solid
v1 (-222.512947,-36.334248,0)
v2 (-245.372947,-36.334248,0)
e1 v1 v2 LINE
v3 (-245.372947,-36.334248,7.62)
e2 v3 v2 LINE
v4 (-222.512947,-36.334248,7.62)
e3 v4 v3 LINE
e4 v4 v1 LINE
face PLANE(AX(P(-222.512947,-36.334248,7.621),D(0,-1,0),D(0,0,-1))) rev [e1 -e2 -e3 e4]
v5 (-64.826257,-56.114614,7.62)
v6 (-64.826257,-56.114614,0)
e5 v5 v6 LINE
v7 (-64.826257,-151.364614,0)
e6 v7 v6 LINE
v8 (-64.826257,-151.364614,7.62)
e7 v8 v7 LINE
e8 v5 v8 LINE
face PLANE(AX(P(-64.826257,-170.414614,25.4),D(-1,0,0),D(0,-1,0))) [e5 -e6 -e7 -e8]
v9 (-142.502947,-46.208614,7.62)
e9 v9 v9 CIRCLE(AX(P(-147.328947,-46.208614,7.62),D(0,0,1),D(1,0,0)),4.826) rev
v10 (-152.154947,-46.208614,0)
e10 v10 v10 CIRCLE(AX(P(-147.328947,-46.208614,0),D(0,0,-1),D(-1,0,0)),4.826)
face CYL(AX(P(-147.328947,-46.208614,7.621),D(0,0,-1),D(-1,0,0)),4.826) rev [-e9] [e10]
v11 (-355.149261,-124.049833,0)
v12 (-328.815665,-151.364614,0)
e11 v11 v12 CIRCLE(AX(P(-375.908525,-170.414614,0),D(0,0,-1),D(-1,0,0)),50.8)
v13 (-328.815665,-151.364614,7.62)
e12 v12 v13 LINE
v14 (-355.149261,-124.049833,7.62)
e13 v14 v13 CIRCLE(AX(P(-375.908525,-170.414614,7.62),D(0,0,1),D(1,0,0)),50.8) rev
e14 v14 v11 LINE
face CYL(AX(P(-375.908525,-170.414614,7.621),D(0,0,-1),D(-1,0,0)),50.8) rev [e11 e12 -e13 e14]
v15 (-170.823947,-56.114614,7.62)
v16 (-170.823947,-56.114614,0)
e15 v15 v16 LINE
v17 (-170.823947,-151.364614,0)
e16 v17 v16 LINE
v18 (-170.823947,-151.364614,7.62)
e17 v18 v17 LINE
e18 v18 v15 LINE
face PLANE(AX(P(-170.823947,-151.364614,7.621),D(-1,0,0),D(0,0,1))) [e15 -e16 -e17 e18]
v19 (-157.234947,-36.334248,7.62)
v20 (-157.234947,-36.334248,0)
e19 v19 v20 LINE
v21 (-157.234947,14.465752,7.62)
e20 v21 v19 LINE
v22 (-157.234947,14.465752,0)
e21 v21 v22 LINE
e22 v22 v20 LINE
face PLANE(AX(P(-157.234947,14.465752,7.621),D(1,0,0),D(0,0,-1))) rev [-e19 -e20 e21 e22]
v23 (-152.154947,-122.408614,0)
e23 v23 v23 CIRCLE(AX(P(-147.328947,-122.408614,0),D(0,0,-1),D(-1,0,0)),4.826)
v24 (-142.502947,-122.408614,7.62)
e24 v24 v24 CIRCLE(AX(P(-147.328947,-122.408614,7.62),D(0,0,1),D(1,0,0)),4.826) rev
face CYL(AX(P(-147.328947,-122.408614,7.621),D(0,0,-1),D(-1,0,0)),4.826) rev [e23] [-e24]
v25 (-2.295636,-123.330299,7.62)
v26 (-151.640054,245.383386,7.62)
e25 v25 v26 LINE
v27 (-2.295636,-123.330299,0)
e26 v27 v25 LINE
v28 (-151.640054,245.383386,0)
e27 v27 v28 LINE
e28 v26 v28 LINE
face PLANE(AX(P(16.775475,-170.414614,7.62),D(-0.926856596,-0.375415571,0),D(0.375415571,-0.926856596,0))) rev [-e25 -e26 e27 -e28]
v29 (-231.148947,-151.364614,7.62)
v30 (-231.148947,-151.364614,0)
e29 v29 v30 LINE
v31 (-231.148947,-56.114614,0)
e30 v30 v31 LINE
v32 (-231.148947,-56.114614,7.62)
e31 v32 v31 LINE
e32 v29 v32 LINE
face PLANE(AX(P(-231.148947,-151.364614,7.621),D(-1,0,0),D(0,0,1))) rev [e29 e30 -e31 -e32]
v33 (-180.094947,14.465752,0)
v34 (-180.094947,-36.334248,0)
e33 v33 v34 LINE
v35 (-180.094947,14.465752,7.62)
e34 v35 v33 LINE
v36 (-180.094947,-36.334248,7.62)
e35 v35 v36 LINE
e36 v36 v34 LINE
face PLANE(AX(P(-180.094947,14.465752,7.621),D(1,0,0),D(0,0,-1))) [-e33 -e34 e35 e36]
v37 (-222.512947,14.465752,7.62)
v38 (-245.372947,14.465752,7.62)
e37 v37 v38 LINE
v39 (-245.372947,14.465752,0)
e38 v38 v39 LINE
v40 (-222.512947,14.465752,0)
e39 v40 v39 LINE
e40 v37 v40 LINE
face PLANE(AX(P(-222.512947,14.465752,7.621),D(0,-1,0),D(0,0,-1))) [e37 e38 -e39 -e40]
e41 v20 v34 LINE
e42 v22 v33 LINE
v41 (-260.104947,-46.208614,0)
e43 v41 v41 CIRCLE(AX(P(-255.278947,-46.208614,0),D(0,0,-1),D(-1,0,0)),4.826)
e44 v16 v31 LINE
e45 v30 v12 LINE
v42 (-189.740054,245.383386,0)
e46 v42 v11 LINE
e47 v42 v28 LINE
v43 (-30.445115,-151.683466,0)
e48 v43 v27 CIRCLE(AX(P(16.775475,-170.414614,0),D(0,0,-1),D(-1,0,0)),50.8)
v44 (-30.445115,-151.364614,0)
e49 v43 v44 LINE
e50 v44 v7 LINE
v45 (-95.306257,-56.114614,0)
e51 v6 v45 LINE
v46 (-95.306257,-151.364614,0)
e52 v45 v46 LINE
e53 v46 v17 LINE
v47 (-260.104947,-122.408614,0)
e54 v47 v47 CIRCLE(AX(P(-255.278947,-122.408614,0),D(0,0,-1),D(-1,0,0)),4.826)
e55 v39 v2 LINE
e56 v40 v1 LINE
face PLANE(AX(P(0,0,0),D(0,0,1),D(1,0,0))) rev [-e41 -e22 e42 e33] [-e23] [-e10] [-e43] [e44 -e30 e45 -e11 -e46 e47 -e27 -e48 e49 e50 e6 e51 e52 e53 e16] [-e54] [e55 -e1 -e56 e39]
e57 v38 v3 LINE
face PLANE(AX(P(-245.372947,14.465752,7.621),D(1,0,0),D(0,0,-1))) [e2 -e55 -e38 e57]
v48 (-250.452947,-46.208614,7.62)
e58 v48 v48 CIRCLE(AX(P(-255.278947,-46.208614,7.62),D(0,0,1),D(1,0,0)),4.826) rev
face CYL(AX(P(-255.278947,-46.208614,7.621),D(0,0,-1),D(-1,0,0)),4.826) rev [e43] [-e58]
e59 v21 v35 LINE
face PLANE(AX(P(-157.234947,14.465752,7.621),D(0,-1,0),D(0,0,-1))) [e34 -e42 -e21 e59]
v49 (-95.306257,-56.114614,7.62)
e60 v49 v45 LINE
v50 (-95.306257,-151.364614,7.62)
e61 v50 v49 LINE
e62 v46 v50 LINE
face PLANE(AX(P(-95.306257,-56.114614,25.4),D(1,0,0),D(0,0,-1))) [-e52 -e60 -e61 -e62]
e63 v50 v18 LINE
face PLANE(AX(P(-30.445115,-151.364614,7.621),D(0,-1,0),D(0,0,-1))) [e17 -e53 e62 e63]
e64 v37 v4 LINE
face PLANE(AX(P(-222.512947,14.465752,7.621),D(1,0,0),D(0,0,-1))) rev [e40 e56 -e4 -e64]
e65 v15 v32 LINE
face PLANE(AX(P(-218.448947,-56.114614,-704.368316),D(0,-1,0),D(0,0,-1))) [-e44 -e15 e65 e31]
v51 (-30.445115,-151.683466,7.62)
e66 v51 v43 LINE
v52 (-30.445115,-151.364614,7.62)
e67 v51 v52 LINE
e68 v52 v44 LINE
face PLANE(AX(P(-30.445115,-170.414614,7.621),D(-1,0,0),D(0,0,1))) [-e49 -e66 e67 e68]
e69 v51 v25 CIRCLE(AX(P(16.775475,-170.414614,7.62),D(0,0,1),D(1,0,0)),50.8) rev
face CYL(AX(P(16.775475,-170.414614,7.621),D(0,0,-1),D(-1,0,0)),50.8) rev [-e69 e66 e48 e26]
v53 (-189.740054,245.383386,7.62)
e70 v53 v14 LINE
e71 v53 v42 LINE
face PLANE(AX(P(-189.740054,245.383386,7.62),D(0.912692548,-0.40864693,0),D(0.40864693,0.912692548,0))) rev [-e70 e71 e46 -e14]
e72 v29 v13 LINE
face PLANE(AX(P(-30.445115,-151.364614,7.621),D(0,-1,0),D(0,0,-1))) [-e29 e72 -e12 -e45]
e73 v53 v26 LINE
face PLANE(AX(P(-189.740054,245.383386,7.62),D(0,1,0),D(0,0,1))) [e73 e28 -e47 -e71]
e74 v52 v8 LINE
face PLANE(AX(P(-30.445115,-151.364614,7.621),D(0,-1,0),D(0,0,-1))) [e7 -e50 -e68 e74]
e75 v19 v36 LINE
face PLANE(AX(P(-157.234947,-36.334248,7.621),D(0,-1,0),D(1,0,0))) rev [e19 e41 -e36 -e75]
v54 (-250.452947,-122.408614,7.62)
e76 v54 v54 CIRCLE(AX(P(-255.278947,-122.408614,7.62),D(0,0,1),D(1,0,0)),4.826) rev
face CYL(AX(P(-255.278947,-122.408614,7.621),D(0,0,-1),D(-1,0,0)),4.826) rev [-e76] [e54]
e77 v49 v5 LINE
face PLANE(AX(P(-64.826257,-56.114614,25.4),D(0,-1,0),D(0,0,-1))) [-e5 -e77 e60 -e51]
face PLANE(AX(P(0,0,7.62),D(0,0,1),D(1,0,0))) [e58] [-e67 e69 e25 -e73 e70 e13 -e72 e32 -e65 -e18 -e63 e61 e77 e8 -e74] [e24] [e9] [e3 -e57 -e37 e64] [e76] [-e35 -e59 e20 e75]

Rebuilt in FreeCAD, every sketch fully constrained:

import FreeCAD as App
import Part
import Sketcher
from FreeCAD import Vector
Q = App.Units.Quantity

doc = App.newDocument("Part")
params = doc.addObject("Spreadsheet::Sheet", "Params")
for row, (alias, value) in enumerate([
    ("sketch1_width", "1.5 in"),
    ("sketch1_width2", "15.46 in"),
    ("pad1_length", "0.3 in"),
    ("sketch2_diameter", "1.25 in"),
    ("pocket1_length", "2 in"),
    ("sketch3_diameter", "1.25 in"),
    ("pocket2_length", "2 in"),
    ("sketch4_width", "1.375 in"),
    ("sketch5_diameter", "0.38 in"),
    ("sketch6_diameter", "0.38 in"),
    ("sketch7_width", "1.2 in"),
    ("sketch7_height", "4.5 in"),
    ("pocket6_length", "1 in"),
    ("sketch8_diameter", "4 in"),
    ("pocket7_length", "0.3 in"),
    ("sketch9_diameter", "4 in"),
    ("pocket8_length", "0.3 in"),
    ("sketch10_height", "0.75 in"),
    ("pocket9_length", "0.3 in"),
    ("sketch11_diameter", "0.38 in"),
    ("sketch12_diameter", "0.38 in"),
    ("sketch13_height", "2 in"),
    ("sketch13_width", "0.9 in"),
    ("sketch14_height", "2 in"),
    ("sketch14_width", "0.9 in"),
    ("sketch15_width", "0.5 in"),
    ("sketch15_height", "3.75 in"),
    ("sketch16_width", "0.5 in"),
    ("sketch16_height", "3.75 in"),
], start=1):
    params.set(f"A{row}", alias)
    params.set(f"B{row}", "=" + value)
    params.setAlias(f"B{row}", alias)

body = doc.addObject("PartDesign::Body", "Body")

sketch1 = body.newObject("Sketcher::SketchObject", "Sketch")
sketch1.AttachmentSupport = (doc.getObject("XY_Plane"), [""])
sketch1.MapMode = "FlatFace"
sketch1.addGeometry([
    Part.LineSegment(Vector(-190, 245, 0), Vector(-376, -170, 0)),
    Part.LineSegment(Vector(-376, -170, 0), Vector(17, -170, 0)),
    Part.LineSegment(Vector(17, -170, 0), Vector(-152, 245, 0)),
    Part.LineSegment(Vector(-152, 245, 0), Vector(-190, 245, 0)),
], False)
sketch1.addConstraint([
    Sketcher.Constraint("Coincident", 0, 2, 1, 1),
    Sketcher.Constraint("Coincident", 1, 2, 2, 1),
    Sketcher.Constraint("Coincident", 2, 2, 3, 1),
    Sketcher.Constraint("Coincident", 3, 2, 0, 1),
    Sketcher.Constraint("Horizontal", 1),
    Sketcher.Constraint("Horizontal", 3),
    Sketcher.Constraint("DistanceX", 3, 2, 3, 1, Q("1.5 in")),
    Sketcher.Constraint("DistanceX", 1, 1, 1, 2, Q("15.46 in")),
    Sketcher.Constraint("Angle", 2, Q("112.05 deg")),
    Sketcher.Constraint("DistanceY", 1, 2, 2, 2, Q("16.37 in")),
    Sketcher.Constraint("DistanceX", 0, 2, -1, 1, 375.908525),
    Sketcher.Constraint("DistanceY", 0, 2, -1, 1, 170.414614),
])
sketch1.setExpression("Constraints[6]", "Params.sketch1_width")
sketch1.setExpression("Constraints[7]", "Params.sketch1_width2")
pad1 = body.newObject("PartDesign::Pad", "Pad")
pad1.Profile = sketch1
pad1.setExpression("Length", "Params.pad1_length")

sketch2 = body.newObject("Sketcher::SketchObject", "Sketch001")
sketch2.AttachmentSupport = (doc.getObject("XY_Plane"), [""])
sketch2.MapMode = "FlatFace"
sketch2.addGeometry(Part.Circle(Vector(-376, -170, 0), Vector(0, 0, 1), 16), False)
sketch2.addConstraint([
    Sketcher.Constraint("Diameter", 0, Q("1.25 in")),
    Sketcher.Constraint("DistanceX", 0, 3, -1, 1, 375.908525),
    Sketcher.Constraint("DistanceY", 0, 3, -1, 1, 170.414614),
])
sketch2.setExpression("Constraints[0]", "Params.sketch2_diameter")
pocket1 = body.newObject("PartDesign::Pocket", "Pocket")
pocket1.Profile = sketch2
pocket1.setExpression("Length", "Params.pocket1_length")
pocket1.Reversed = True

sketch3 = body.newObject("Sketcher::SketchObject", "Sketch002")
sketch3.AttachmentSupport = (doc.getObject("XY_Plane"), [""])
sketch3.MapMode = "FlatFace"
sketch3.addGeometry(Part.Circle(Vector(17, -170, 0), Vector(0, 0, 1), 16), False)
sketch3.addConstraint([
    Sketcher.Constraint("Diameter", 0, Q("1.25 in")),
    Sketcher.Constraint("DistanceX", -1, 1, 0, 3, 16.775475),
    Sketcher.Constraint("DistanceY", 0, 3, -1, 1, 170.414614),
])
sketch3.setExpression("Constraints[0]", "Params.sketch3_diameter")
pocket2 = body.newObject("PartDesign::Pocket", "Pocket001")
pocket2.Profile = sketch3
pocket2.setExpression("Length", "Params.pocket2_length")
pocket2.Reversed = True

sketch4 = body.newObject("Sketcher::SketchObject", "Sketch003")
sketch4.AttachmentSupport = (doc.getObject("XY_Plane"), [""])
sketch4.MapMode = "FlatFace"
sketch4.addGeometry([
    Part.LineSegment(Vector(-218, -56, 0), Vector(-184, -56, 0)),
    Part.LineSegment(Vector(-184, -56, 0), Vector(-184, -3049, 0)),
    Part.LineSegment(Vector(-184, -3049, 0), Vector(-218, -3049, 0)),
    Part.LineSegment(Vector(-218, -3049, 0), Vector(-218, -56, 0)),
], False)
sketch4.addConstraint([
    Sketcher.Constraint("Coincident", 0, 2, 1, 1),
    Sketcher.Constraint("Coincident", 1, 2, 2, 1),
    Sketcher.Constraint("Coincident", 2, 2, 3, 1),
    Sketcher.Constraint("Coincident", 3, 2, 0, 1),
    Sketcher.Constraint("Horizontal", 0),
    Sketcher.Constraint("Vertical", 1),
    Sketcher.Constraint("Horizontal", 2),
    Sketcher.Constraint("Vertical", 3),
    Sketcher.Constraint("DistanceX", 0, 1, 0, 2, Q("1.375 in")),
    Sketcher.Constraint("DistanceY", 1, 2, 1, 1, 2993.196288),
    Sketcher.Constraint("DistanceX", 0, 2, -1, 1, 183.523947),
    Sketcher.Constraint("DistanceY", 0, 2, -1, 1, 56.114614),
])
sketch4.setExpression("Constraints[8]", "Params.sketch4_width")
pocket3 = body.newObject("PartDesign::Pocket", "Pocket002")
pocket3.Profile = sketch4
pocket3.Type = "ThroughAll"
pocket3.Midplane = True

sketch5 = body.newObject("Sketcher::SketchObject", "Sketch004")
sketch5.AttachmentSupport = (doc.getObject("XY_Plane"), [""])
sketch5.MapMode = "FlatFace"
sketch5.addGeometry(Part.Circle(Vector(-147.3, -122.4, 0), Vector(0, 0, 1), 4.8), False)
sketch5.addConstraint([
    Sketcher.Constraint("Diameter", 0, Q("0.38 in")),
    Sketcher.Constraint("DistanceX", 0, 3, -1, 1, 147.328947),
    Sketcher.Constraint("DistanceY", 0, 3, -1, 1, 122.408614),
])
sketch5.setExpression("Constraints[0]", "Params.sketch5_diameter")
pocket4 = body.newObject("PartDesign::Pocket", "Pocket003")
pocket4.Profile = sketch5
pocket4.Type = "UpToFirst"
pocket4.Reversed = True

sketch6 = body.newObject("Sketcher::SketchObject", "Sketch005")
sketch6.AttachmentSupport = (doc.getObject("XY_Plane"), [""])
sketch6.MapMode = "FlatFace"
sketch6.addGeometry(Part.Circle(Vector(-255.3, -122.4, 0), Vector(0, 0, 1), 4.8), False)
sketch6.addConstraint([
    Sketcher.Constraint("Diameter", 0, Q("0.38 in")),
    Sketcher.Constraint("DistanceX", 0, 3, -1, 1, 255.278947),
    Sketcher.Constraint("DistanceY", 0, 3, -1, 1, 122.408614),
])
sketch6.setExpression("Constraints[0]", "Params.sketch6_diameter")
pocket5 = body.newObject("PartDesign::Pocket", "Pocket004")
pocket5.Profile = sketch6
pocket5.Type = "UpToFirst"
pocket5.Reversed = True

sketch7 = body.newObject("Sketcher::SketchObject", "Sketch006")
sketch7.AttachmentSupport = (doc.getObject("XY_Plane"), [""])
sketch7.MapMode = "FlatFace"
sketch7.addGeometry([
    Part.LineSegment(Vector(-65, -56, 0), Vector(-65, -170, 0)),
    Part.LineSegment(Vector(-65, -170, 0), Vector(-95, -170, 0)),
    Part.LineSegment(Vector(-95, -170, 0), Vector(-95, -56, 0)),
    Part.LineSegment(Vector(-95, -56, 0), Vector(-65, -56, 0)),
], False)
sketch7.addConstraint([
    Sketcher.Constraint("Coincident", 0, 2, 1, 1),
    Sketcher.Constraint("Coincident", 1, 2, 2, 1),
    Sketcher.Constraint("Coincident", 2, 2, 3, 1),
    Sketcher.Constraint("Coincident", 3, 2, 0, 1),
    Sketcher.Constraint("Vertical", 0),
    Sketcher.Constraint("Horizontal", 1),
    Sketcher.Constraint("Vertical", 2),
    Sketcher.Constraint("Horizontal", 3),
    Sketcher.Constraint("DistanceX", 1, 2, 1, 1, Q("1.2 in")),
    Sketcher.Constraint("DistanceY", 0, 2, 0, 1, Q("4.5 in")),
    Sketcher.Constraint("DistanceX", 0, 2, -1, 1, 64.826257),
    Sketcher.Constraint("DistanceY", 0, 2, -1, 1, 170.414614),
])
sketch7.setExpression("Constraints[8]", "Params.sketch7_width")
sketch7.setExpression("Constraints[9]", "Params.sketch7_height")
pocket6 = body.newObject("PartDesign::Pocket", "Pocket005")
pocket6.Profile = sketch7
pocket6.setExpression("Length", "Params.pocket6_length")
pocket6.Reversed = True

sketch8 = body.newObject("Sketcher::SketchObject", "Sketch007")
sketch8.AttachmentSupport = (doc.getObject("XY_Plane"), [""])
sketch8.MapMode = "FlatFace"
sketch8.addGeometry(Part.Circle(Vector(17, -170, 0), Vector(0, 0, 1), 51), False)
sketch8.addConstraint([
    Sketcher.Constraint("Diameter", 0, Q("4 in")),
    Sketcher.Constraint("DistanceX", -1, 1, 0, 3, 16.775475),
    Sketcher.Constraint("DistanceY", 0, 3, -1, 1, 170.414614),
])
sketch8.setExpression("Constraints[0]", "Params.sketch8_diameter")
pocket7 = body.newObject("PartDesign::Pocket", "Pocket006")
pocket7.Profile = sketch8
pocket7.setExpression("Length", "Params.pocket7_length")
pocket7.Reversed = True

sketch9 = body.newObject("Sketcher::SketchObject", "Sketch008")
sketch9.AttachmentSupport = (doc.getObject("XY_Plane"), [""])
sketch9.MapMode = "FlatFace"
sketch9.addGeometry(Part.Circle(Vector(-376, -170, 0), Vector(0, 0, 1), 51), False)
sketch9.addConstraint([
    Sketcher.Constraint("Diameter", 0, Q("4 in")),
    Sketcher.Constraint("DistanceX", 0, 3, -1, 1, 375.908525),
    Sketcher.Constraint("DistanceY", 0, 3, -1, 1, 170.414614),
])
sketch9.setExpression("Constraints[0]", "Params.sketch9_diameter")
pocket8 = body.newObject("PartDesign::Pocket", "Pocket007")
pocket8.Profile = sketch9
pocket8.setExpression("Length", "Params.pocket8_length")
pocket8.Reversed = True

sketch10 = body.newObject("Sketcher::SketchObject", "Sketch009")
sketch10.AttachmentSupport = (doc.getObject("XY_Plane"), [""])
sketch10.MapMode = "FlatFace"
sketch10.AttachmentOffset = App.Placement(Vector(0, 0, 0.3 * 25.4), App.Rotation())
sketch10.addGeometry([
    Part.LineSegment(Vector(-30, -151, 0), Vector(-30, -170, 0)),
    Part.LineSegment(Vector(-30, -170, 0), Vector(-331, -170, 0)),
    Part.LineSegment(Vector(-331, -170, 0), Vector(-331, -151, 0)),
    Part.LineSegment(Vector(-331, -151, 0), Vector(-30, -151, 0)),
], False)
sketch10.addConstraint([
    Sketcher.Constraint("Coincident", 0, 2, 1, 1),
    Sketcher.Constraint("Coincident", 1, 2, 2, 1),
    Sketcher.Constraint("Coincident", 2, 2, 3, 1),
    Sketcher.Constraint("Coincident", 3, 2, 0, 1),
    Sketcher.Constraint("Vertical", 0),
    Sketcher.Constraint("Horizontal", 1),
    Sketcher.Constraint("Vertical", 2),
    Sketcher.Constraint("Horizontal", 3),
    Sketcher.Constraint("DistanceY", 0, 2, 0, 1, Q("0.75 in")),
    Sketcher.Constraint("DistanceX", 1, 2, 1, 1, 300.609515),
    Sketcher.Constraint("DistanceX", 1, 2, -1, 1, 331.05463),
    Sketcher.Constraint("DistanceY", 0, 2, -1, 1, 170.414614),
])
sketch10.setExpression("Constraints[8]", "Params.sketch10_height")
pocket9 = body.newObject("PartDesign::Pocket", "Pocket008")
pocket9.Profile = sketch10
pocket9.setExpression("Length", "Params.pocket9_length")

sketch11 = body.newObject("Sketcher::SketchObject", "Sketch010")
sketch11.AttachmentSupport = (doc.getObject("XY_Plane"), [""])
sketch11.MapMode = "FlatFace"
sketch11.addGeometry(Part.Circle(Vector(-255.3, -46.2, 0), Vector(0, 0, 1), 4.8), False)
sketch11.addConstraint([
    Sketcher.Constraint("Diameter", 0, Q("0.38 in")),
    Sketcher.Constraint("DistanceX", 0, 3, -1, 1, 255.278947),
    Sketcher.Constraint("DistanceY", 0, 3, -1, 1, 46.208614),
])
sketch11.setExpression("Constraints[0]", "Params.sketch11_diameter")
pocket10 = body.newObject("PartDesign::Pocket", "Pocket009")
pocket10.Profile = sketch11
pocket10.Type = "UpToFirst"
pocket10.Reversed = True

sketch12 = body.newObject("Sketcher::SketchObject", "Sketch011")
sketch12.AttachmentSupport = (doc.getObject("XY_Plane"), [""])
sketch12.MapMode = "FlatFace"
sketch12.addGeometry(Part.Circle(Vector(-147.3, -46.2, 0), Vector(0, 0, 1), 4.8), False)
sketch12.addConstraint([
    Sketcher.Constraint("Diameter", 0, Q("0.38 in")),
    Sketcher.Constraint("DistanceX", 0, 3, -1, 1, 147.328947),
    Sketcher.Constraint("DistanceY", 0, 3, -1, 1, 46.208614),
])
sketch12.setExpression("Constraints[0]", "Params.sketch12_diameter")
pocket11 = body.newObject("PartDesign::Pocket", "Pocket010")
pocket11.Profile = sketch12
pocket11.Type = "UpToFirst"
pocket11.Reversed = True

sketch13 = body.newObject("Sketcher::SketchObject", "Sketch012")
sketch13.AttachmentSupport = (doc.getObject("XY_Plane"), [""])
sketch13.MapMode = "FlatFace"
sketch13.addGeometry([
    Part.LineSegment(Vector(-157, 14, 0), Vector(-157, -36, 0)),
    Part.LineSegment(Vector(-157, -36, 0), Vector(-180, -36, 0)),
    Part.LineSegment(Vector(-180, -36, 0), Vector(-180, 14, 0)),
    Part.LineSegment(Vector(-180, 14, 0), Vector(-157, 14, 0)),
], False)
sketch13.addConstraint([
    Sketcher.Constraint("Coincident", 0, 2, 1, 1),
    Sketcher.Constraint("Coincident", 1, 2, 2, 1),
    Sketcher.Constraint("Coincident", 2, 2, 3, 1),
    Sketcher.Constraint("Coincident", 3, 2, 0, 1),
    Sketcher.Constraint("Vertical", 0),
    Sketcher.Constraint("Horizontal", 1),
    Sketcher.Constraint("Vertical", 2),
    Sketcher.Constraint("Horizontal", 3),
    Sketcher.Constraint("DistanceY", 0, 2, 0, 1, Q("2 in")),
    Sketcher.Constraint("DistanceX", 1, 2, 1, 1, Q("0.9 in")),
    Sketcher.Constraint("DistanceX", 0, 2, -1, 1, 157.234947),
    Sketcher.Constraint("DistanceY", 0, 2, -1, 1, 36.334248),
])
sketch13.setExpression("Constraints[8]", "Params.sketch13_height")
sketch13.setExpression("Constraints[9]", "Params.sketch13_width")
pocket12 = body.newObject("PartDesign::Pocket", "Pocket011")
pocket12.Profile = sketch13
pocket12.Type = "UpToFirst"
pocket12.Reversed = True

sketch14 = body.newObject("Sketcher::SketchObject", "Sketch013")
sketch14.AttachmentSupport = (doc.getObject("XY_Plane"), [""])
sketch14.MapMode = "FlatFace"
sketch14.addGeometry([
    Part.LineSegment(Vector(-223, 14, 0), Vector(-223, -36, 0)),
    Part.LineSegment(Vector(-223, -36, 0), Vector(-245, -36, 0)),
    Part.LineSegment(Vector(-245, -36, 0), Vector(-245, 14, 0)),
    Part.LineSegment(Vector(-245, 14, 0), Vector(-223, 14, 0)),
], False)
sketch14.addConstraint([
    Sketcher.Constraint("Coincident", 0, 2, 1, 1),
    Sketcher.Constraint("Coincident", 1, 2, 2, 1),
    Sketcher.Constraint("Coincident", 2, 2, 3, 1),
    Sketcher.Constraint("Coincident", 3, 2, 0, 1),
    Sketcher.Constraint("Vertical", 0),
    Sketcher.Constraint("Horizontal", 1),
    Sketcher.Constraint("Vertical", 2),
    Sketcher.Constraint("Horizontal", 3),
    Sketcher.Constraint("DistanceY", 0, 2, 0, 1, Q("2 in")),
    Sketcher.Constraint("DistanceX", 1, 2, 1, 1, Q("0.9 in")),
    Sketcher.Constraint("DistanceX", 0, 2, -1, 1, 222.512947),
    Sketcher.Constraint("DistanceY", 0, 2, -1, 1, 36.334248),
])
sketch14.setExpression("Constraints[8]", "Params.sketch14_height")
sketch14.setExpression("Constraints[9]", "Params.sketch14_width")
pocket13 = body.newObject("PartDesign::Pocket", "Pocket012")
pocket13.Profile = sketch14
pocket13.Type = "UpToFirst"
pocket13.Reversed = True

sketch15 = body.newObject("Sketcher::SketchObject", "Sketch014")
sketch15.AttachmentSupport = (doc.getObject("XY_Plane"), [""])
sketch15.MapMode = "FlatFace"
sketch15.addGeometry([
    Part.LineSegment(Vector(-218, -56, 0), Vector(-218, -151, 0)),
    Part.LineSegment(Vector(-218, -151, 0), Vector(-231, -151, 0)),
    Part.LineSegment(Vector(-231, -151, 0), Vector(-231, -56, 0)),
    Part.LineSegment(Vector(-231, -56, 0), Vector(-218, -56, 0)),
], False)
sketch15.addConstraint([
    Sketcher.Constraint("Coincident", 0, 2, 1, 1),
    Sketcher.Constraint("Coincident", 1, 2, 2, 1),
    Sketcher.Constraint("Coincident", 2, 2, 3, 1),
    Sketcher.Constraint("Coincident", 3, 2, 0, 1),
    Sketcher.Constraint("Vertical", 0),
    Sketcher.Constraint("Horizontal", 1),
    Sketcher.Constraint("Vertical", 2),
    Sketcher.Constraint("Horizontal", 3),
    Sketcher.Constraint("DistanceX", 1, 2, 1, 1, Q("0.5 in")),
    Sketcher.Constraint("DistanceY", 0, 2, 0, 1, Q("3.75 in")),
    Sketcher.Constraint("DistanceX", 0, 2, -1, 1, 218.448947),
    Sketcher.Constraint("DistanceY", 0, 2, -1, 1, 151.364614),
])
sketch15.setExpression("Constraints[8]", "Params.sketch15_width")
sketch15.setExpression("Constraints[9]", "Params.sketch15_height")
pocket14 = body.newObject("PartDesign::Pocket", "Pocket013")
pocket14.Profile = sketch15
pocket14.Type = "UpToFirst"
pocket14.Reversed = True

sketch16 = body.newObject("Sketcher::SketchObject", "Sketch015")
sketch16.AttachmentSupport = (doc.getObject("XY_Plane"), [""])
sketch16.MapMode = "FlatFace"
sketch16.addGeometry([
    Part.LineSegment(Vector(-171, -56, 0), Vector(-171, -151, 0)),
    Part.LineSegment(Vector(-171, -151, 0), Vector(-184, -151, 0)),
    Part.LineSegment(Vector(-184, -151, 0), Vector(-184, -56, 0)),
    Part.LineSegment(Vector(-184, -56, 0), Vector(-171, -56, 0)),
], False)
sketch16.addConstraint([
    Sketcher.Constraint("Coincident", 0, 2, 1, 1),
    Sketcher.Constraint("Coincident", 1, 2, 2, 1),
    Sketcher.Constraint("Coincident", 2, 2, 3, 1),
    Sketcher.Constraint("Coincident", 3, 2, 0, 1),
    Sketcher.Constraint("Vertical", 0),
    Sketcher.Constraint("Horizontal", 1),
    Sketcher.Constraint("Vertical", 2),
    Sketcher.Constraint("Horizontal", 3),
    Sketcher.Constraint("DistanceX", 1, 2, 1, 1, Q("0.5 in")),
    Sketcher.Constraint("DistanceY", 0, 2, 0, 1, Q("3.75 in")),
    Sketcher.Constraint("DistanceX", 0, 2, -1, 1, 170.823947),
    Sketcher.Constraint("DistanceY", 0, 2, -1, 1, 151.364614),
])
sketch16.setExpression("Constraints[8]", "Params.sketch16_width")
sketch16.setExpression("Constraints[9]", "Params.sketch16_height")
pocket15 = body.newObject("PartDesign::Pocket", "Pocket014")
pocket15.Profile = sketch16
pocket15.Type = "UpToFirst"
pocket15.Reversed = True

doc.recompute()
